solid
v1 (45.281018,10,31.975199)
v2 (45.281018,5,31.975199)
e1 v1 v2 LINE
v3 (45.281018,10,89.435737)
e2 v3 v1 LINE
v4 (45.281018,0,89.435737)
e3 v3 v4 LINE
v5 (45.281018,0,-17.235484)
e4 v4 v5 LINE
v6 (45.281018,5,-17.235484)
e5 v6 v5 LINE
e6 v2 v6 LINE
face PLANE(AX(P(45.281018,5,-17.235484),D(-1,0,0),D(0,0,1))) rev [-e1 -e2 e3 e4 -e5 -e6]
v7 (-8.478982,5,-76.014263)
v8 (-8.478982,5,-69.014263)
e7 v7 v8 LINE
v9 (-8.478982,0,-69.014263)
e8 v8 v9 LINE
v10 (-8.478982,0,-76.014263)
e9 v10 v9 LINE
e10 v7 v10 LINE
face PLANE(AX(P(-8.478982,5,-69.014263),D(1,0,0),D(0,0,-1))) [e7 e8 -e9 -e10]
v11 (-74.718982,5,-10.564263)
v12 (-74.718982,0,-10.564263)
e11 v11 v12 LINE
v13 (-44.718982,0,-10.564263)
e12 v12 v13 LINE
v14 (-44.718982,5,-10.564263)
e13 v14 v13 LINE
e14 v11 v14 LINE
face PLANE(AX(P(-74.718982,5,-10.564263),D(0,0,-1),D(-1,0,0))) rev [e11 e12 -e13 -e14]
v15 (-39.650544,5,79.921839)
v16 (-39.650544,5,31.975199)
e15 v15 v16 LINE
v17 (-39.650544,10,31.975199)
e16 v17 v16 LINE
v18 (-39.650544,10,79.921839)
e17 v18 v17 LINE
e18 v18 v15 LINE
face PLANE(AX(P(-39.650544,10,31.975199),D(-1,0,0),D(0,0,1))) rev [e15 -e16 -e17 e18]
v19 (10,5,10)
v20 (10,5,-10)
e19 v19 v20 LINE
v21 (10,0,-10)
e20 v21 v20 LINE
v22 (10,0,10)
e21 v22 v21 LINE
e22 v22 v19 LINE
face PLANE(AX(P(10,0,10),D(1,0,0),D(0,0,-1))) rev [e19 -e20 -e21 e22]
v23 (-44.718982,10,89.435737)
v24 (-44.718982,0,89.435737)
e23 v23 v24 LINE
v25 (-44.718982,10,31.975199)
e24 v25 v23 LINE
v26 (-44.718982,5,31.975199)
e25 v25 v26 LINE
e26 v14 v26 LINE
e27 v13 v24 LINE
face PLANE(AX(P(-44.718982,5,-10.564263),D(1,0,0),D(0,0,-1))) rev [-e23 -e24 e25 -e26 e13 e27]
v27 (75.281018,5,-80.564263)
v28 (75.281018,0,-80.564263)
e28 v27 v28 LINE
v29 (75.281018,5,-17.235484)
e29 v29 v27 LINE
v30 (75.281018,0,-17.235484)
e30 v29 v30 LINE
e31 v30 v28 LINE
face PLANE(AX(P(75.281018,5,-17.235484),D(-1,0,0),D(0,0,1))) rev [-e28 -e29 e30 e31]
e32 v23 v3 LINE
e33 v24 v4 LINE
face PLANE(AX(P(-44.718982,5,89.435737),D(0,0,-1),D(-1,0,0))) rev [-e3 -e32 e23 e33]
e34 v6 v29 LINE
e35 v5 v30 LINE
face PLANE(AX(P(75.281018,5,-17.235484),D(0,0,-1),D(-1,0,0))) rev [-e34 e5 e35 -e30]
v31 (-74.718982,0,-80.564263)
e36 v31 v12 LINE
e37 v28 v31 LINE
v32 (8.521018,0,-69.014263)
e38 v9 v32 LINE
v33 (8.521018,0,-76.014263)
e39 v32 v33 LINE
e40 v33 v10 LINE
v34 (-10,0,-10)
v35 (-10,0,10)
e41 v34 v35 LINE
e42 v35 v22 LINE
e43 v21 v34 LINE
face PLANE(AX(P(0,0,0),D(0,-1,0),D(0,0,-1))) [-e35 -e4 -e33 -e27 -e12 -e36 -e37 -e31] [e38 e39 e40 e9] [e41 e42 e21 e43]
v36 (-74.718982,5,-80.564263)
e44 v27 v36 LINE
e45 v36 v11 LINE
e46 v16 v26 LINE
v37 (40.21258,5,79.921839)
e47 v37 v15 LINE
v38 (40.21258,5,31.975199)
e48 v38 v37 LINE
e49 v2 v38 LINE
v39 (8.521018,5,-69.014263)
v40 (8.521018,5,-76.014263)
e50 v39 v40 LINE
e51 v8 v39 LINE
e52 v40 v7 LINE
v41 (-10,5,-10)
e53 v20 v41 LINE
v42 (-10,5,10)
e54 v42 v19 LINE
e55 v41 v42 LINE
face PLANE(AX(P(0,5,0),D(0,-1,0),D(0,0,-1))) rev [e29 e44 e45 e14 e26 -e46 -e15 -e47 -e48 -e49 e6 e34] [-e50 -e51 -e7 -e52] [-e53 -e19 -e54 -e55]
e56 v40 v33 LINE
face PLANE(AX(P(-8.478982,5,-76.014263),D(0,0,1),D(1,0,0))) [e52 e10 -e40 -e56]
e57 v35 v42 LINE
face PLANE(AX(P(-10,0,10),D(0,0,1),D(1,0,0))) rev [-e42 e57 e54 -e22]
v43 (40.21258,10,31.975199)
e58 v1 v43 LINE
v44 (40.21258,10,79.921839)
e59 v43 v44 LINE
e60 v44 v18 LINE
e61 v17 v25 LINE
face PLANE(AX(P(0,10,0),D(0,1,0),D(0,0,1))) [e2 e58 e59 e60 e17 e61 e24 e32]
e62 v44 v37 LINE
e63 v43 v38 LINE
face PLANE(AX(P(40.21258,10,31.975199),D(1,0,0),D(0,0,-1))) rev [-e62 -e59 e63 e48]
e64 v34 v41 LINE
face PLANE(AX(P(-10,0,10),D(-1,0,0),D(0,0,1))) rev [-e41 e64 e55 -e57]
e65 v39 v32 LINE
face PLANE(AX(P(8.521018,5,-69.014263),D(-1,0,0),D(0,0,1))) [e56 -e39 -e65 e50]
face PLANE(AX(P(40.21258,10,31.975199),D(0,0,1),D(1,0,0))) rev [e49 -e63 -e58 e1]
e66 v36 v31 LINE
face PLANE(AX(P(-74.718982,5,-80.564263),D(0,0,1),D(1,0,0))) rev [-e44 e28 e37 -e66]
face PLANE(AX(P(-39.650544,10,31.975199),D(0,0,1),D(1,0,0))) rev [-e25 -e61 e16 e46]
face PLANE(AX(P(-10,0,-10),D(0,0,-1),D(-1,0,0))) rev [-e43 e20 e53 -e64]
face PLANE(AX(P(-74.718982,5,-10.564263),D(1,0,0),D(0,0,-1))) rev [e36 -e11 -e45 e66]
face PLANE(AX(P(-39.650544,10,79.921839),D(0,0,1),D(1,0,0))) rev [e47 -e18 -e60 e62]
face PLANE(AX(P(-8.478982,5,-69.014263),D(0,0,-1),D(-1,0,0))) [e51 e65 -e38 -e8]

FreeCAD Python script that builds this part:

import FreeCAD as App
import Part
import Sketcher
Q = App.Units.Quantity

doc = App.newDocument("Part")
params = doc.addObject("Spreadsheet::Sheet", "Params")
for row, (alias, value) in enumerate([
    ("sketch1_width", "90 mm"),
    ("sketch1_width2", "30 mm"),
    ("sketch1_width3", "17 mm"),
    ("sketch1_height", "70 mm"),
    ("sketch1_height2", "100 mm"),
    ("pad1_length", "5 mm"),
    ("sketch2_width", "20 mm"),
    ("pocket1_length", "5 mm"),
    ("sketch3_width", "90 mm"),
    ("pad2_length", "5 mm"),
], start=1):
    params.set(f"A{row}", alias)
    params.set(f"B{row}", "=" + value)
    params.setAlias(f"B{row}", alias)

body = doc.addObject("PartDesign::Body", "Body")

# Sketch on XZ plane
sketch1 = doc.addObject("Sketcher::SketchObject", "Sketch")
body.addObject(sketch1)
sketch1.AttachmentSupport = (doc.XZ_Plane, [""])
sketch1.MapMode = "FlatFace"
sketch1.addGeometry(Part.LineSegment(App.Vector(-45, 89, 0), App.Vector(45, 89, 0)), False)
sketch1.addGeometry(Part.LineSegment(App.Vector(45, 89, 0), App.Vector(45, -17, 0)), False)
sketch1.addGeometry(Part.LineSegment(App.Vector(45, -17, 0), App.Vector(75, -17, 0)), False)
sketch1.addGeometry(Part.LineSegment(App.Vector(75, -17, 0), App.Vector(75, -81, 0)), False)
sketch1.addGeometry(Part.LineSegment(App.Vector(75, -81, 0), App.Vector(-75, -81, 0)), False)
sketch1.addGeometry(Part.LineSegment(App.Vector(-75, -81, 0), App.Vector(-75, -11, 0)), False)
sketch1.addGeometry(Part.LineSegment(App.Vector(-75, -11, 0), App.Vector(-45, -11, 0)), False)
sketch1.addGeometry(Part.LineSegment(App.Vector(-45, -11, 0), App.Vector(-45, 89, 0)), False)
sketch1.addGeometry(Part.LineSegment(App.Vector(9, -69, 0), App.Vector(-8, -69, 0)), False)
sketch1.addGeometry(Part.LineSegment(App.Vector(-8, -69, 0), App.Vector(-8, -76, 0)), False)
sketch1.addGeometry(Part.LineSegment(App.Vector(-8, -76, 0), App.Vector(9, -76, 0)), False)
sketch1.addGeometry(Part.LineSegment(App.Vector(9, -76, 0), App.Vector(9, -69, 0)), False)
sketch1.addConstraint(Sketcher.Constraint("Coincident", 0, 2, 1, 1))
sketch1.addConstraint(Sketcher.Constraint("Coincident", 1, 2, 2, 1))
sketch1.addConstraint(Sketcher.Constraint("Coincident", 2, 2, 3, 1))
sketch1.addConstraint(Sketcher.Constraint("Coincident", 3, 2, 4, 1))
sketch1.addConstraint(Sketcher.Constraint("Coincident", 4, 2, 5, 1))
sketch1.addConstraint(Sketcher.Constraint("Coincident", 5, 2, 6, 1))
sketch1.addConstraint(Sketcher.Constraint("Coincident", 6, 2, 7, 1))
sketch1.addConstraint(Sketcher.Constraint("Coincident", 7, 2, 0, 1))
sketch1.addConstraint(Sketcher.Constraint("Coincident", 8, 2, 9, 1))
sketch1.addConstraint(Sketcher.Constraint("Coincident", 9, 2, 10, 1))
sketch1.addConstraint(Sketcher.Constraint("Coincident", 10, 2, 11, 1))
sketch1.addConstraint(Sketcher.Constraint("Coincident", 11, 2, 8, 1))
sketch1.addConstraint(Sketcher.Constraint("Horizontal", 0))
sketch1.addConstraint(Sketcher.Constraint("Vertical", 1))
sketch1.addConstraint(Sketcher.Constraint("Horizontal", 2))
sketch1.addConstraint(Sketcher.Constraint("Vertical", 3))
sketch1.addConstraint(Sketcher.Constraint("Horizontal", 4))
sketch1.addConstraint(Sketcher.Constraint("Vertical", 5))
sketch1.addConstraint(Sketcher.Constraint("Horizontal", 6))
sketch1.addConstraint(Sketcher.Constraint("Vertical", 7))
sketch1.addConstraint(Sketcher.Constraint("Horizontal", 8))
sketch1.addConstraint(Sketcher.Constraint("Vertical", 9))
sketch1.addConstraint(Sketcher.Constraint("Horizontal", 10))
sketch1.addConstraint(Sketcher.Constraint("Vertical", 11))
sketch1.addConstraint(Sketcher.Constraint("Equal", 2, 6))
sketch1.addConstraint(Sketcher.Constraint("DistanceX", 0, 1, 0, 2, Q("90 mm")))
sketch1.addConstraint(Sketcher.Constraint("DistanceX", 2, 1, 2, 2, Q("30 mm")))
sketch1.addConstraint(Sketcher.Constraint("DistanceX", 8, 2, 8, 1, Q("17 mm")))
sketch1.addConstraint(Sketcher.Constraint("DistanceY", 5, 1, 5, 2, Q("70 mm")))
sketch1.addConstraint(Sketcher.Constraint("DistanceY", 7, 1, 7, 2, Q("100 mm")))
sketch1.addConstraint(Sketcher.Constraint("DistanceY", 9, 2, 9, 1, Q("7 mm")))
sketch1.addConstraint(Sketcher.Constraint("DistanceX", 4, 2, 8, 2, Q("66.24 mm")))
sketch1.addConstraint(Sketcher.Constraint("DistanceY", 4, 2, 8, 2, Q("11.55 mm")))
sketch1.addConstraint(Sketcher.Constraint("DistanceY", 1, 2, 1, 1, Q("106.671222 mm")))
sketch1.addConstraint(Sketcher.Constraint("DistanceX", -1, 1, 0, 2, Q("45.281018 mm")))
sketch1.addConstraint(Sketcher.Constraint("DistanceY", -1, 1, 0, 2, Q("89.435737 mm")))
sketch1.setExpression("Constraints[25]", "Params.sketch1_width")
sketch1.setExpression("Constraints[26]", "Params.sketch1_width2")
sketch1.setExpression("Constraints[27]", "Params.sketch1_width3")
sketch1.setExpression("Constraints[28]", "Params.sketch1_height")
sketch1.setExpression("Constraints[29]", "Params.sketch1_height2")
pad1 = doc.addObject("PartDesign::Pad", "Pad")
body.addObject(pad1)
pad1.Profile = sketch1
pad1.setExpression("Length", "Params.pad1_length")
pad1.Reversed = True

# Sketch on XZ plane
sketch2 = doc.addObject("Sketcher::SketchObject", "Sketch001")
body.addObject(sketch2)
sketch2.AttachmentSupport = (doc.XZ_Plane, [""])
sketch2.MapMode = "FlatFace"
sketch2.AttachmentOffset = App.Placement(App.Vector(0, 0, -5), App.Rotation())
sketch2.addGeometry(Part.LineSegment(App.Vector(-10, -10, 0), App.Vector(-10, 10, 0)), False)
sketch2.addGeometry(Part.LineSegment(App.Vector(-10, 10, 0), App.Vector(10, 10, 0)), False)
sketch2.addGeometry(Part.LineSegment(App.Vector(10, 10, 0), App.Vector(10, -10, 0)), False)
sketch2.addGeometry(Part.LineSegment(App.Vector(10, -10, 0), App.Vector(-10, -10, 0)), False)
sketch2.addConstraint(Sketcher.Constraint("Coincident", 0, 2, 1, 1))
sketch2.addConstraint(Sketcher.Constraint("Coincident", 1, 2, 2, 1))
sketch2.addConstraint(Sketcher.Constraint("Coincident", 2, 2, 3, 1))
sketch2.addConstraint(Sketcher.Constraint("Coincident", 3, 2, 0, 1))
sketch2.addConstraint(Sketcher.Constraint("Vertical", 0))
sketch2.addConstraint(Sketcher.Constraint("Horizontal", 1))
sketch2.addConstraint(Sketcher.Constraint("Vertical", 2))
sketch2.addConstraint(Sketcher.Constraint("Horizontal", 3))
sketch2.addConstraint(Sketcher.Constraint("Symmetric", 0, 2, 2, 2, -1, 1))
sketch2.addConstraint(Sketcher.Constraint("Equal", 3, 0))
sketch2.addConstraint(Sketcher.Constraint("DistanceX", 1, 1, 1, 2, Q("20 mm")))
sketch2.setExpression("Constraints[10]", "Params.sketch2_width")
pocket1 = doc.addObject("PartDesign::Pocket", "Pocket")
body.addObject(pocket1)
pocket1.Profile = sketch2
pocket1.setExpression("Length", "Params.pocket1_length")
pocket1.Reversed = True

# Sketch on XZ plane
sketch3 = doc.addObject("Sketcher::SketchObject", "Sketch002")
body.addObject(sketch3)
sketch3.AttachmentSupport = (doc.XZ_Plane, [""])
sketch3.MapMode = "FlatFace"
sketch3.AttachmentOffset = App.Placement(App.Vector(0, 0, -5), App.Rotation())
sketch3.addGeometry(Part.LineSegment(App.Vector(40, 80, 0), App.Vector(-40, 80, 0)), False)
sketch3.addGeometry(Part.LineSegment(App.Vector(-40, 80, 0), App.Vector(-40, 32, 0)), False)
sketch3.addGeometry(Part.LineSegment(App.Vector(-40, 32, 0), App.Vector(-45, 32, 0)), False)
sketch3.addGeometry(Part.LineSegment(App.Vector(-45, 32, 0), App.Vector(-45, 89, 0)), False)
sketch3.addGeometry(Part.LineSegment(App.Vector(-45, 89, 0), App.Vector(45, 89, 0)), False)
sketch3.addGeometry(Part.LineSegment(App.Vector(45, 89, 0), App.Vector(45, 32, 0)), False)
sketch3.addGeometry(Part.LineSegment(App.Vector(45, 32, 0), App.Vector(40, 32, 0)), False)
sketch3.addGeometry(Part.LineSegment(App.Vector(40, 32, 0), App.Vector(40, 80, 0)), False)
sketch3.addConstraint(Sketcher.Constraint("Coincident", 0, 2, 1, 1))
sketch3.addConstraint(Sketcher.Constraint("Coincident", 1, 2, 2, 1))
sketch3.addConstraint(Sketcher.Constraint("Coincident", 2, 2, 3, 1))
sketch3.addConstraint(Sketcher.Constraint("Coincident", 3, 2, 4, 1))
sketch3.addConstraint(Sketcher.Constraint("Coincident", 4, 2, 5, 1))
sketch3.addConstraint(Sketcher.Constraint("Coincident", 5, 2, 6, 1))
sketch3.addConstraint(Sketcher.Constraint("Coincident", 6, 2, 7, 1))
sketch3.addConstraint(Sketcher.Constraint("Coincident", 7, 2, 0, 1))
sketch3.addConstraint(Sketcher.Constraint("Horizontal", 0))
sketch3.addConstraint(Sketcher.Constraint("Vertical", 1))
sketch3.addConstraint(Sketcher.Constraint("Horizontal", 2))
sketch3.addConstraint(Sketcher.Constraint("Vertical", 3))
sketch3.addConstraint(Sketcher.Constraint("Horizontal", 4))
sketch3.addConstraint(Sketcher.Constraint("Vertical", 5))
sketch3.addConstraint(Sketcher.Constraint("Horizontal", 6))
sketch3.addConstraint(Sketcher.Constraint("Vertical", 7))
sketch3.addConstraint(Sketcher.Constraint("Horizontal", 2, 2, 5, 2))
sketch3.addConstraint(Sketcher.Constraint("Equal", 2, 6))
sketch3.addConstraint(Sketcher.Constraint("DistanceX", 4, 1, 4, 2, Q("90 mm")))
sketch3.addConstraint(Sketcher.Constraint("DistanceX", 2, 2, 2, 1, Q("5.068438 mm")))
sketch3.addConstraint(Sketcher.Constraint("DistanceY", 1, 2, 1, 1, Q("47.94664 mm")))
sketch3.addConstraint(Sketcher.Constraint("DistanceY", 3, 1, 3, 2, Q("57.460538 mm")))
sketch3.addConstraint(Sketcher.Constraint("DistanceY", -1, 1, 1, 2, Q("31.975199 mm")))
sketch3.addConstraint(Sketcher.Constraint("DistanceX", 2, 2, -1, 1, Q("44.718982 mm")))
sketch3.setExpression("Constraints[18]", "Params.sketch3_width")
pad2 = doc.addObject("PartDesign::Pad", "Pad001")
body.addObject(pad2)
pad2.Profile = sketch3
pad2.setExpression("Length", "Params.pad2_length")
pad2.Reversed = True

doc.recompute()
